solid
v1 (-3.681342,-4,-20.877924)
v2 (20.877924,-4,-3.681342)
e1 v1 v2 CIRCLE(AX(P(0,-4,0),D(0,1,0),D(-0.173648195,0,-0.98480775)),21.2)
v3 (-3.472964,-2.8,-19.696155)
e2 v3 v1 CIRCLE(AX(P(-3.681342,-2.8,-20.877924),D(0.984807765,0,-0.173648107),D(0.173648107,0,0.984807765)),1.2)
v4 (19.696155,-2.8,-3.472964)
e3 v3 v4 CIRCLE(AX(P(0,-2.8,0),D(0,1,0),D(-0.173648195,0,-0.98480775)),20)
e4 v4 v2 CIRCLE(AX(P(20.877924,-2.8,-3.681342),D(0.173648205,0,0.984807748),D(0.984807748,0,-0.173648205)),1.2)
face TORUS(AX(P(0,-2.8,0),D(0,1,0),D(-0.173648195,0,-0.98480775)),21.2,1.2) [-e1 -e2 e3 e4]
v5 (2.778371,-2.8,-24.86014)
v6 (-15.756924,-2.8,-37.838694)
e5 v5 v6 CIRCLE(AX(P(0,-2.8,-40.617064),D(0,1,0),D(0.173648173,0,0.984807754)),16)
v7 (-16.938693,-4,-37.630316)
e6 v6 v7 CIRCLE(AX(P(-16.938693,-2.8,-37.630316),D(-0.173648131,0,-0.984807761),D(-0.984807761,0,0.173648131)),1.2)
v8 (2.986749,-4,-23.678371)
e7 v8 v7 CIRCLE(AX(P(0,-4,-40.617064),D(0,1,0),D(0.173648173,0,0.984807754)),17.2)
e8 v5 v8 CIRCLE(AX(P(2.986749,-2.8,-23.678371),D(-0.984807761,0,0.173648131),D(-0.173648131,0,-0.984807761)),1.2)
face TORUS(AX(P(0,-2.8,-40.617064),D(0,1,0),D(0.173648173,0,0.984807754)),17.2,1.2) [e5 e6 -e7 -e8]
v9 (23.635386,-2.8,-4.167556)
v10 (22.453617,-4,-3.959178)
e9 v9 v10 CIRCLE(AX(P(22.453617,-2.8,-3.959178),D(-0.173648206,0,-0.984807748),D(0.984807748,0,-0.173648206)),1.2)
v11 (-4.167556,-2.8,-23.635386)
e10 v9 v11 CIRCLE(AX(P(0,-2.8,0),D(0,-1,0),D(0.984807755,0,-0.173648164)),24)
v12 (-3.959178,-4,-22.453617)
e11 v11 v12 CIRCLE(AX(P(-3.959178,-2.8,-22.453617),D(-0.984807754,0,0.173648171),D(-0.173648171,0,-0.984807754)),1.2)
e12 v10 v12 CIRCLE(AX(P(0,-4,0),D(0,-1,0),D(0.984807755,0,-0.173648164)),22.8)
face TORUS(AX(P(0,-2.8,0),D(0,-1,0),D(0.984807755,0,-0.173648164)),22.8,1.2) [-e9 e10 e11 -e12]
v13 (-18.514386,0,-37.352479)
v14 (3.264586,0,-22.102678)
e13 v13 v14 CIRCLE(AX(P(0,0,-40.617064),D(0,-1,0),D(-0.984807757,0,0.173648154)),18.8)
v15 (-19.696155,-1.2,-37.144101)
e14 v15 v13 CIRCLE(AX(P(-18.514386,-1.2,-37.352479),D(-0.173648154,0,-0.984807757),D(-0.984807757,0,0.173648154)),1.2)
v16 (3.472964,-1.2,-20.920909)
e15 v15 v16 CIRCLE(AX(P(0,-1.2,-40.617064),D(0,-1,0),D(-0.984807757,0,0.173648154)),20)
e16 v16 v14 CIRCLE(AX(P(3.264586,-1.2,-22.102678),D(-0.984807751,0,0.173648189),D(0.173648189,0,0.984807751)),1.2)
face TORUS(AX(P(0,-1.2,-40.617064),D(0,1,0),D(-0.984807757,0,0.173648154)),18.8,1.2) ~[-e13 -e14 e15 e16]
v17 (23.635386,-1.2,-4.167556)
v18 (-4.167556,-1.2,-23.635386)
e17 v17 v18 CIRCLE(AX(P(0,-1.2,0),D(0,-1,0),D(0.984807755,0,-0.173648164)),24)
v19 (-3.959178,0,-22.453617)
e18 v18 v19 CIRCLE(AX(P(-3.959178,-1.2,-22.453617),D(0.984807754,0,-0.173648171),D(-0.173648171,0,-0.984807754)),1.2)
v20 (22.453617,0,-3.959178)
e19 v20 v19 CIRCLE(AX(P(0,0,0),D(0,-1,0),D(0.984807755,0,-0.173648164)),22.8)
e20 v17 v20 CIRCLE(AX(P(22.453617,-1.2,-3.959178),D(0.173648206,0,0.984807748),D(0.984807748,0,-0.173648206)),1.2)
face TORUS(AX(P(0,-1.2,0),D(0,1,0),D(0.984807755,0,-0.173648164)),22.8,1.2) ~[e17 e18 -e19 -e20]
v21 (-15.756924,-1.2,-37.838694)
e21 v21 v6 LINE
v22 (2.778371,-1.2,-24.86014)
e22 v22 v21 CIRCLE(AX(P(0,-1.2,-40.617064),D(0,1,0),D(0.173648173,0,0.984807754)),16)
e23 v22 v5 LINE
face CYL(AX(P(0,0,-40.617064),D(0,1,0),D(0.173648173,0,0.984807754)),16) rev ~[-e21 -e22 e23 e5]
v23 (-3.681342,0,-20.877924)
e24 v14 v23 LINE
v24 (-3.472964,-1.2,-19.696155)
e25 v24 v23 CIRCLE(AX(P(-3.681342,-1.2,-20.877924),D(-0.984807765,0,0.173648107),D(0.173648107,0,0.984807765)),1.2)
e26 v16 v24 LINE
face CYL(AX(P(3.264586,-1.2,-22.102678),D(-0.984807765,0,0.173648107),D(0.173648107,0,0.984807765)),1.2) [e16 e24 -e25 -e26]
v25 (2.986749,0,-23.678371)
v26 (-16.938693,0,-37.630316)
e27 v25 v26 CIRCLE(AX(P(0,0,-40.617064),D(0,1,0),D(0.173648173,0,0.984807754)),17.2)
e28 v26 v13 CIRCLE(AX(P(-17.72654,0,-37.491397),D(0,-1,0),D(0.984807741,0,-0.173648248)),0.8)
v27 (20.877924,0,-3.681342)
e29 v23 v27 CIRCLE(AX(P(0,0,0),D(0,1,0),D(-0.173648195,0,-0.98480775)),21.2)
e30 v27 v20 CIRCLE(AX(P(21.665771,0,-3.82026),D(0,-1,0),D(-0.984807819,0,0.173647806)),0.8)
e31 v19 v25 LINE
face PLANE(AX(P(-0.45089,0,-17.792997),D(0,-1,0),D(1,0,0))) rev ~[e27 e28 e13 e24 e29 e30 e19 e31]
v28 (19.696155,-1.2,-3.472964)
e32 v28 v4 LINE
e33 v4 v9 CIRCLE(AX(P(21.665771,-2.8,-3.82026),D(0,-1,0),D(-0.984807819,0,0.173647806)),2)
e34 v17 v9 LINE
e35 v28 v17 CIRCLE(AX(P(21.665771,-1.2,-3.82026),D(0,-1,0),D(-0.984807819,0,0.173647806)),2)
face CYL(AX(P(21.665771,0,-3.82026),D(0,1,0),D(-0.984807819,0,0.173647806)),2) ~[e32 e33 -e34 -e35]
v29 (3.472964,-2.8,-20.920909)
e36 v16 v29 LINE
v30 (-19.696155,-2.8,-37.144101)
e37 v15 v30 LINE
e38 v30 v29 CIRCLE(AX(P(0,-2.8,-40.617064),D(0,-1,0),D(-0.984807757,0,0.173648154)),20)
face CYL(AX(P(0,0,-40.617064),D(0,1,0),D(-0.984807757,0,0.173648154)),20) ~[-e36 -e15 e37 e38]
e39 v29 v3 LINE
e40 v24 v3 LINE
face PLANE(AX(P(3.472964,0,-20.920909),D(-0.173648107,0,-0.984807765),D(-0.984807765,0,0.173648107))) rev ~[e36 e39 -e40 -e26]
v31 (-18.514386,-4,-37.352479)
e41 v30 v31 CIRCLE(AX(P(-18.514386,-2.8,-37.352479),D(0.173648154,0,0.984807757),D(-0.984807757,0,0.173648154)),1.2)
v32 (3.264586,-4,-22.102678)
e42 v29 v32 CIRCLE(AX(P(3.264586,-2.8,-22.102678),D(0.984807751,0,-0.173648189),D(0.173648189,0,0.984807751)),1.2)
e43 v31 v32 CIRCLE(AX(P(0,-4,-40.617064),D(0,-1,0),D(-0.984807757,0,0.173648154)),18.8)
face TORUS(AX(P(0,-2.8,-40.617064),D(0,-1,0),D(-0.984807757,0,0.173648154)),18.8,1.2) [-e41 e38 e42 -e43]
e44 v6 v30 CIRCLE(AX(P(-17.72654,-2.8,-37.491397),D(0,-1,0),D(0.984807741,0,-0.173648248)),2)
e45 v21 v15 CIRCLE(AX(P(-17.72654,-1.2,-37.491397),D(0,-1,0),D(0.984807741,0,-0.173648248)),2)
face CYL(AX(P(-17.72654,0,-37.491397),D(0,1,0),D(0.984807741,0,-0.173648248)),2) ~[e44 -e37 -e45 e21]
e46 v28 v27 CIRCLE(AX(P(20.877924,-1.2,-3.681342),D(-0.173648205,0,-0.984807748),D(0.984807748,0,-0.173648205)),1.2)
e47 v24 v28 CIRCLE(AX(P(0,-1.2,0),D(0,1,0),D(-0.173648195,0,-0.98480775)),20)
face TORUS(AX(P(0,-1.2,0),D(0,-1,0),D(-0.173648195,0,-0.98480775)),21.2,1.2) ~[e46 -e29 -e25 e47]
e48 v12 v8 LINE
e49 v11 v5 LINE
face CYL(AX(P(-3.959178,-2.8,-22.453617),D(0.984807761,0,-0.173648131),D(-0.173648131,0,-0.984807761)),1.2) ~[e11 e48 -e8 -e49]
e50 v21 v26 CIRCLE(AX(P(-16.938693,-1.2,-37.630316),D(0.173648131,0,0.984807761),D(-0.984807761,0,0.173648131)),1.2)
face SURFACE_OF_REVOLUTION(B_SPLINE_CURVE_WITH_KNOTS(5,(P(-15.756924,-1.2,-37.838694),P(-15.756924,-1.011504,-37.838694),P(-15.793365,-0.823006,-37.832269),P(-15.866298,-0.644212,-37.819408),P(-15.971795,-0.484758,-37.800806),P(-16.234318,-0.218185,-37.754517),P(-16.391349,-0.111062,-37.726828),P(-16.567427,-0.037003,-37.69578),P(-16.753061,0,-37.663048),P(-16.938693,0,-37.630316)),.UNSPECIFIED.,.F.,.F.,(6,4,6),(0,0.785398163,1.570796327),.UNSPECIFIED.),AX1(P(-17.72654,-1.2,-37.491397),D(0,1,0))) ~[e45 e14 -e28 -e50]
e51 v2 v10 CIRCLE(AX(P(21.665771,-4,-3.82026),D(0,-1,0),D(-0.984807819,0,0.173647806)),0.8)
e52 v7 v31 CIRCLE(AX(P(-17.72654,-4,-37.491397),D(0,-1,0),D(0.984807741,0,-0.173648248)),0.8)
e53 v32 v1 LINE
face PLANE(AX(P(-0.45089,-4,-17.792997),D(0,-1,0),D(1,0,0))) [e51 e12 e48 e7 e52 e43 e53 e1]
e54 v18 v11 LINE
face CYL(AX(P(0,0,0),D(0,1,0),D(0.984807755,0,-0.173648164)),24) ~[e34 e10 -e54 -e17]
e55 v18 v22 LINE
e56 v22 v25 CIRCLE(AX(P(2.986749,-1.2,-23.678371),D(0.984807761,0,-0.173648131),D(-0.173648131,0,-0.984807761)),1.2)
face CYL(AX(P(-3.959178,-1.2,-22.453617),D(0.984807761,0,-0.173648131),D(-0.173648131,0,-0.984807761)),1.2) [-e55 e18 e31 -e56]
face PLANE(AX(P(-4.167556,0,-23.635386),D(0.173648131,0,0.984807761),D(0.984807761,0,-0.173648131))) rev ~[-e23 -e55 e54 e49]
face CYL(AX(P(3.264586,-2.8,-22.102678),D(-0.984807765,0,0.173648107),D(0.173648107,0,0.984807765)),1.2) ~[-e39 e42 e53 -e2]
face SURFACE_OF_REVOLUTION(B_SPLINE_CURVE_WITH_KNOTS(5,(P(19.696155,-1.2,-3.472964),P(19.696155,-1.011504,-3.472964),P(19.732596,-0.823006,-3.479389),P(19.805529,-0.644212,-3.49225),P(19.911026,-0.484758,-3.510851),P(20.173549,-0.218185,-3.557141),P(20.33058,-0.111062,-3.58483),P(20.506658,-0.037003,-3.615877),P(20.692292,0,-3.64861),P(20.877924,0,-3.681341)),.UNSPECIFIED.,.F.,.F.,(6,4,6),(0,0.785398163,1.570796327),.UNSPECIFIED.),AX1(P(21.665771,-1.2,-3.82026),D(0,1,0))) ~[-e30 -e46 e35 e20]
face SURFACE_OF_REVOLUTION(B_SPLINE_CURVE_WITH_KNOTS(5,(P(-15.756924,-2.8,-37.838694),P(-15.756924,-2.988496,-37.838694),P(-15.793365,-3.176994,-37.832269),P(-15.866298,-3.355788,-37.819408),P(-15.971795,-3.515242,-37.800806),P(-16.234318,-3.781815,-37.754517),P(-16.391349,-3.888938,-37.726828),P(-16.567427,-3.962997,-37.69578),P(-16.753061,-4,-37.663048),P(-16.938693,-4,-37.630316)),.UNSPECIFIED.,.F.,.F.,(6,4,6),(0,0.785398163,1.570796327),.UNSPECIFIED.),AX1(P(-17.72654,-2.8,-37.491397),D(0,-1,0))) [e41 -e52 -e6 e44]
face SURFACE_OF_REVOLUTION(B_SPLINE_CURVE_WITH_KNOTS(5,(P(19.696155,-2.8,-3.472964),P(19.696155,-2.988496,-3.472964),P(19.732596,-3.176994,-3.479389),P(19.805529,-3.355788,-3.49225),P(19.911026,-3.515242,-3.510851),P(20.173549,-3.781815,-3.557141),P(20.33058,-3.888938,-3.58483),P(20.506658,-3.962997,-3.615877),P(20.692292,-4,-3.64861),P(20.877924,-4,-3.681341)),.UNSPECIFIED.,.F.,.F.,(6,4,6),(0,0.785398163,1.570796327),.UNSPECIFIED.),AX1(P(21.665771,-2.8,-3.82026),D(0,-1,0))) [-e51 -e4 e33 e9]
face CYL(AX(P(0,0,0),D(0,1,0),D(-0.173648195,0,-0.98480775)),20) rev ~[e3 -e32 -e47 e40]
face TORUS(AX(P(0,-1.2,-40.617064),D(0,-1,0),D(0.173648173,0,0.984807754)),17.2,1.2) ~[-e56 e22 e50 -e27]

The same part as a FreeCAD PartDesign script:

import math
import FreeCAD as App
import Part
import Sketcher
Q = App.Units.Quantity


def edges_at(feature, points):
    """Names of the edges that pass closest to the given points."""
    edges = feature.Shape.Edges
    near = lambda p: min(range(len(edges)), key=lambda i: edges[i].distToShape(Part.Vertex(*p))[0])
    return sorted({f"Edge{near(p) + 1}" for p in points})

doc = App.newDocument("Part")
body = doc.addObject("PartDesign::Body", "Body")

sketch1 = doc.addObject("Sketcher::SketchObject", "Sketch")
body.addObject(sketch1)
sketch1.AttachmentSupport = (doc.XZ_Plane, [""])
sketch1.MapMode = "FlatFace"
sketch1.addGeometry([
    Part.ArcOfCircle(Part.Circle(App.Vector(0, 0, 0), App.Vector(0, 0, 1), 20), math.radians(-10.000002), math.radians(259.999999)),
    Part.ArcOfCircle(Part.Circle(App.Vector(21.665771, -3.82026, 0), App.Vector(0, 0, 1), 2), math.radians(170.000022), math.radians(349.999998)),
    Part.ArcOfCircle(Part.Circle(App.Vector(0, 0, 0), App.Vector(0, 0, 1), 24), math.radians(-9.999999), math.radians(260)),
    Part.LineSegment(App.Vector(-4.167556, -23.635386, 0), App.Vector(2.778371, -24.86014, 0)),
    Part.ArcOfCircle(Part.Circle(App.Vector(0, -40.617064, 0), App.Vector(0, 0, 1), 16), math.radians(170.000003), math.radians(440)),
    Part.ArcOfCircle(Part.Circle(App.Vector(-17.72654, -37.491397, 0), App.Vector(0, 0, 1), 2), math.radians(-10.000004), math.radians(169.999996)),
    Part.ArcOfCircle(Part.Circle(App.Vector(0, -40.617064, 0), App.Vector(0, 0, 1), 20), math.radians(170.000001), math.radians(439.999999)),
    Part.LineSegment(App.Vector(3.472964, -20.920909, 0), App.Vector(-3.472964, -19.696155, 0)),
], False)
sketch1.addConstraint([
    Sketcher.Constraint("Tangent", 0, 1, 1, 1),
    Sketcher.Constraint("Tangent", 1, 2, 2, 1),
    Sketcher.Constraint("Tangent", 2, 2, 3, 1),
    Sketcher.Constraint("Tangent", 3, 2, 4, 2),
    Sketcher.Constraint("Tangent", 4, 1, 5, 1),
    Sketcher.Constraint("Tangent", 5, 2, 6, 1),
    Sketcher.Constraint("Tangent", 6, 2, 7, 1),
    Sketcher.Constraint("Tangent", 7, 2, 0, 2),
    Sketcher.Constraint("Coincident", 0, 3, -1, 1),
    Sketcher.Constraint("Coincident", 2, 3, -1, 1),
    Sketcher.Constraint("Coincident", 6, 3, 4, 3),
    Sketcher.Constraint("Equal", 1, 5),
    Sketcher.Constraint("Equal", 0, 6),
    Sketcher.Constraint("PointOnObject", 4, 3, -2),
    Sketcher.Constraint("Radius", 0, 20.0),
    Sketcher.Constraint("Radius", 1, 2.0),
    Sketcher.Constraint("Angle", 3, Q("-9.999997 deg")),
    Sketcher.Constraint("DistanceY", 5, 2, -1, 1, 37.144101),
    Sketcher.Constraint("DistanceY", 6, 3, 0, 1, 37.1441),
])
pad1 = doc.addObject("PartDesign::Pad", "Pad")
body.addObject(pad1)
pad1.Profile = sketch1
pad1.Length = 4
doc.recompute()

fillet = doc.addObject("PartDesign::Fillet", "Fillet")
body.addObject(fillet)
fillet.Base = (pad1, edges_at(pad1, [(11.472, -4, -57), (11.472, 0, -57)]))
fillet.Radius = 1.2

doc.recompute()
